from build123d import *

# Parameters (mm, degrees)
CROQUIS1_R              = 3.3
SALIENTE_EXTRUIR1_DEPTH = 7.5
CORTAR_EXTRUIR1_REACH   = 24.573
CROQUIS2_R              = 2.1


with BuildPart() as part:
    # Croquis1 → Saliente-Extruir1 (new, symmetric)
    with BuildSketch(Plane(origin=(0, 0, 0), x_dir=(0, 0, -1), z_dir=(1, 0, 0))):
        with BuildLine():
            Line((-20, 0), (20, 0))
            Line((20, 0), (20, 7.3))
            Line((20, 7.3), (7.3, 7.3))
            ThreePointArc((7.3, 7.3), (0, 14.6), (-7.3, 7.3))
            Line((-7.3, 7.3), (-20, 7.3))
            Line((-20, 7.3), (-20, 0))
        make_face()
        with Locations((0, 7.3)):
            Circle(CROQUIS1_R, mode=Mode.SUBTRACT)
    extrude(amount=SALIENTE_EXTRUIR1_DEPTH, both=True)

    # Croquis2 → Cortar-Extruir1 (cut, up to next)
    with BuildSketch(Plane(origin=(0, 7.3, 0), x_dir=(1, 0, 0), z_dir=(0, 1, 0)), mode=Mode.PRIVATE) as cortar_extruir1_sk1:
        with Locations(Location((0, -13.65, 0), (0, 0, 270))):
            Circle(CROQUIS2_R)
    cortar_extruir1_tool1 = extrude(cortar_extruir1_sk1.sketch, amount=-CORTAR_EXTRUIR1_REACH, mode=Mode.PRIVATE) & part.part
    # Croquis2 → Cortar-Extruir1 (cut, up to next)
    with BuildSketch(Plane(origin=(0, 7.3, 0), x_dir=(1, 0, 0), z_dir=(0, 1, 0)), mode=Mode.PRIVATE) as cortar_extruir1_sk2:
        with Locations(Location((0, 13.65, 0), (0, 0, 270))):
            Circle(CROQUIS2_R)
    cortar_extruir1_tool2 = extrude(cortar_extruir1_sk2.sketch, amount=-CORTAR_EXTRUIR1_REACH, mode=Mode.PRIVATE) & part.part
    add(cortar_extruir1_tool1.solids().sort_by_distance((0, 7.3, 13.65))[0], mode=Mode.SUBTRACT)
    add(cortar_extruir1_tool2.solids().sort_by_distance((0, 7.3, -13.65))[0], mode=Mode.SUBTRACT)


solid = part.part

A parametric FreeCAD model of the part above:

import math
import FreeCAD as App
import Part
import Sketcher

doc = App.newDocument("Part")
body = doc.addObject("PartDesign::Body", "Body")

# Sketch on YZ plane
sketch1 = body.newObject("Sketcher::SketchObject", "Sketch")
sketch1.AttachmentSupport = (doc.getObject("YZ_Plane"), [""])
sketch1.MapMode = "FlatFace"
sketch1.addGeometry([
    Part.LineSegment(App.Vector(0, 20, 0), App.Vector(0, -20, 0)),  # 0
    Part.LineSegment(App.Vector(0, -20, 0), App.Vector(7.3, -20, 0)),  # 1
    Part.LineSegment(App.Vector(7.3, -20, 0), App.Vector(7.3, -7.3, 0)),  # 2
    Part.ArcOfCircle(Part.Circle(App.Vector(7.3, 0, 0), App.Vector(0, 0, 1), 7.3), math.radians(-90), math.radians(90)),  # 3
    Part.LineSegment(App.Vector(7.3, 7.3, 0), App.Vector(7.3, 20, 0)),  # 4
    Part.LineSegment(App.Vector(7.3, 20, 0), App.Vector(0, 20, 0)),  # 5
    Part.Circle(App.Vector(7.3, 0, 0), App.Vector(0, 0, 1), 3.3),  # 6
], False)
sketch1.addConstraint([
    Sketcher.Constraint("Coincident", 0, 2, 1, 1),
    Sketcher.Constraint("Coincident", 1, 2, 2, 1),
    Sketcher.Constraint("Coincident", 2, 2, 3, 1),
    Sketcher.Constraint("Coincident", 3, 2, 4, 1),
    Sketcher.Constraint("Coincident", 4, 2, 5, 1),
    Sketcher.Constraint("Coincident", 5, 2, 0, 1),
    Sketcher.Constraint("Vertical", 0),
    Sketcher.Constraint("Horizontal", 1),
    Sketcher.Constraint("Vertical", 2),
    Sketcher.Constraint("Vertical", 4),
    Sketcher.Constraint("Horizontal", 5),
    Sketcher.Constraint("Coincident", 6, 3, 3, 3),
    Sketcher.Constraint("Symmetric", 0, 2, 5, 2, -1, 1),
    Sketcher.Constraint("Symmetric", 2, 2, 3, 2, -1),
    Sketcher.Constraint("Vertical", 6, 3, 1, 2),
    Sketcher.Constraint("Diameter", 6, 6.6),
    Sketcher.Constraint("Radius", 3, 7.3),
    Sketcher.Constraint("DistanceY", 0, 2, 0, 1, 40.0),
    Sketcher.Constraint("DistanceX", 1, 1, 1, 2, 7.3),
])
pad1 = body.newObject("PartDesign::Pad", "Pad")
pad1.Profile = sketch1
pad1.Length = 15
pad1.Midplane = True

# Sketch on XZ plane
sketch2 = body.newObject("Sketcher::SketchObject", "Sketch001")
sketch2.AttachmentSupport = (doc.getObject("XZ_Plane"), [""])
sketch2.MapMode = "FlatFace"
sketch2.AttachmentOffset = App.Placement(App.Vector(0, 0, -7.3), App.Rotation())
sketch2.addGeometry(Part.Circle(App.Vector(0, 13.7, 0), App.Vector(0, 0, 1), 2.1), False)
sketch2.addConstraint([
    Sketcher.Constraint("PointOnObject", 0, 3, -2),
    Sketcher.Constraint("Diameter", 0, 4.2),
    Sketcher.Constraint("DistanceY", -1, 1, 0, 3, 13.65),
])
pocket1 = body.newObject("PartDesign::Pocket", "Pocket")
pocket1.Profile = sketch2
pocket1.Type = "UpToFirst"
pocket1.Reversed = True

# Sketch on XZ plane
sketch3 = body.newObject("Sketcher::SketchObject", "Sketch002")
sketch3.AttachmentSupport = (doc.getObject("XZ_Plane"), [""])
sketch3.MapMode = "FlatFace"
sketch3.AttachmentOffset = App.Placement(App.Vector(0, 0, -7.3), App.Rotation())
sketch3.addGeometry(Part.Circle(App.Vector(0, -13.7, 0), App.Vector(0, 0, 1), 2.1), False)
sketch3.addConstraint([
    Sketcher.Constraint("PointOnObject", 0, 3, -2),
    Sketcher.Constraint("Diameter", 0, 4.2),
    Sketcher.Constraint("DistanceY", 0, 3, -1, 1, 13.65),
])
pocket2 = body.newObject("PartDesign::Pocket", "Pocket001")
pocket2.Profile = sketch3
pocket2.Type = "UpToFirst"
pocket2.Reversed = True

doc.recompute()
